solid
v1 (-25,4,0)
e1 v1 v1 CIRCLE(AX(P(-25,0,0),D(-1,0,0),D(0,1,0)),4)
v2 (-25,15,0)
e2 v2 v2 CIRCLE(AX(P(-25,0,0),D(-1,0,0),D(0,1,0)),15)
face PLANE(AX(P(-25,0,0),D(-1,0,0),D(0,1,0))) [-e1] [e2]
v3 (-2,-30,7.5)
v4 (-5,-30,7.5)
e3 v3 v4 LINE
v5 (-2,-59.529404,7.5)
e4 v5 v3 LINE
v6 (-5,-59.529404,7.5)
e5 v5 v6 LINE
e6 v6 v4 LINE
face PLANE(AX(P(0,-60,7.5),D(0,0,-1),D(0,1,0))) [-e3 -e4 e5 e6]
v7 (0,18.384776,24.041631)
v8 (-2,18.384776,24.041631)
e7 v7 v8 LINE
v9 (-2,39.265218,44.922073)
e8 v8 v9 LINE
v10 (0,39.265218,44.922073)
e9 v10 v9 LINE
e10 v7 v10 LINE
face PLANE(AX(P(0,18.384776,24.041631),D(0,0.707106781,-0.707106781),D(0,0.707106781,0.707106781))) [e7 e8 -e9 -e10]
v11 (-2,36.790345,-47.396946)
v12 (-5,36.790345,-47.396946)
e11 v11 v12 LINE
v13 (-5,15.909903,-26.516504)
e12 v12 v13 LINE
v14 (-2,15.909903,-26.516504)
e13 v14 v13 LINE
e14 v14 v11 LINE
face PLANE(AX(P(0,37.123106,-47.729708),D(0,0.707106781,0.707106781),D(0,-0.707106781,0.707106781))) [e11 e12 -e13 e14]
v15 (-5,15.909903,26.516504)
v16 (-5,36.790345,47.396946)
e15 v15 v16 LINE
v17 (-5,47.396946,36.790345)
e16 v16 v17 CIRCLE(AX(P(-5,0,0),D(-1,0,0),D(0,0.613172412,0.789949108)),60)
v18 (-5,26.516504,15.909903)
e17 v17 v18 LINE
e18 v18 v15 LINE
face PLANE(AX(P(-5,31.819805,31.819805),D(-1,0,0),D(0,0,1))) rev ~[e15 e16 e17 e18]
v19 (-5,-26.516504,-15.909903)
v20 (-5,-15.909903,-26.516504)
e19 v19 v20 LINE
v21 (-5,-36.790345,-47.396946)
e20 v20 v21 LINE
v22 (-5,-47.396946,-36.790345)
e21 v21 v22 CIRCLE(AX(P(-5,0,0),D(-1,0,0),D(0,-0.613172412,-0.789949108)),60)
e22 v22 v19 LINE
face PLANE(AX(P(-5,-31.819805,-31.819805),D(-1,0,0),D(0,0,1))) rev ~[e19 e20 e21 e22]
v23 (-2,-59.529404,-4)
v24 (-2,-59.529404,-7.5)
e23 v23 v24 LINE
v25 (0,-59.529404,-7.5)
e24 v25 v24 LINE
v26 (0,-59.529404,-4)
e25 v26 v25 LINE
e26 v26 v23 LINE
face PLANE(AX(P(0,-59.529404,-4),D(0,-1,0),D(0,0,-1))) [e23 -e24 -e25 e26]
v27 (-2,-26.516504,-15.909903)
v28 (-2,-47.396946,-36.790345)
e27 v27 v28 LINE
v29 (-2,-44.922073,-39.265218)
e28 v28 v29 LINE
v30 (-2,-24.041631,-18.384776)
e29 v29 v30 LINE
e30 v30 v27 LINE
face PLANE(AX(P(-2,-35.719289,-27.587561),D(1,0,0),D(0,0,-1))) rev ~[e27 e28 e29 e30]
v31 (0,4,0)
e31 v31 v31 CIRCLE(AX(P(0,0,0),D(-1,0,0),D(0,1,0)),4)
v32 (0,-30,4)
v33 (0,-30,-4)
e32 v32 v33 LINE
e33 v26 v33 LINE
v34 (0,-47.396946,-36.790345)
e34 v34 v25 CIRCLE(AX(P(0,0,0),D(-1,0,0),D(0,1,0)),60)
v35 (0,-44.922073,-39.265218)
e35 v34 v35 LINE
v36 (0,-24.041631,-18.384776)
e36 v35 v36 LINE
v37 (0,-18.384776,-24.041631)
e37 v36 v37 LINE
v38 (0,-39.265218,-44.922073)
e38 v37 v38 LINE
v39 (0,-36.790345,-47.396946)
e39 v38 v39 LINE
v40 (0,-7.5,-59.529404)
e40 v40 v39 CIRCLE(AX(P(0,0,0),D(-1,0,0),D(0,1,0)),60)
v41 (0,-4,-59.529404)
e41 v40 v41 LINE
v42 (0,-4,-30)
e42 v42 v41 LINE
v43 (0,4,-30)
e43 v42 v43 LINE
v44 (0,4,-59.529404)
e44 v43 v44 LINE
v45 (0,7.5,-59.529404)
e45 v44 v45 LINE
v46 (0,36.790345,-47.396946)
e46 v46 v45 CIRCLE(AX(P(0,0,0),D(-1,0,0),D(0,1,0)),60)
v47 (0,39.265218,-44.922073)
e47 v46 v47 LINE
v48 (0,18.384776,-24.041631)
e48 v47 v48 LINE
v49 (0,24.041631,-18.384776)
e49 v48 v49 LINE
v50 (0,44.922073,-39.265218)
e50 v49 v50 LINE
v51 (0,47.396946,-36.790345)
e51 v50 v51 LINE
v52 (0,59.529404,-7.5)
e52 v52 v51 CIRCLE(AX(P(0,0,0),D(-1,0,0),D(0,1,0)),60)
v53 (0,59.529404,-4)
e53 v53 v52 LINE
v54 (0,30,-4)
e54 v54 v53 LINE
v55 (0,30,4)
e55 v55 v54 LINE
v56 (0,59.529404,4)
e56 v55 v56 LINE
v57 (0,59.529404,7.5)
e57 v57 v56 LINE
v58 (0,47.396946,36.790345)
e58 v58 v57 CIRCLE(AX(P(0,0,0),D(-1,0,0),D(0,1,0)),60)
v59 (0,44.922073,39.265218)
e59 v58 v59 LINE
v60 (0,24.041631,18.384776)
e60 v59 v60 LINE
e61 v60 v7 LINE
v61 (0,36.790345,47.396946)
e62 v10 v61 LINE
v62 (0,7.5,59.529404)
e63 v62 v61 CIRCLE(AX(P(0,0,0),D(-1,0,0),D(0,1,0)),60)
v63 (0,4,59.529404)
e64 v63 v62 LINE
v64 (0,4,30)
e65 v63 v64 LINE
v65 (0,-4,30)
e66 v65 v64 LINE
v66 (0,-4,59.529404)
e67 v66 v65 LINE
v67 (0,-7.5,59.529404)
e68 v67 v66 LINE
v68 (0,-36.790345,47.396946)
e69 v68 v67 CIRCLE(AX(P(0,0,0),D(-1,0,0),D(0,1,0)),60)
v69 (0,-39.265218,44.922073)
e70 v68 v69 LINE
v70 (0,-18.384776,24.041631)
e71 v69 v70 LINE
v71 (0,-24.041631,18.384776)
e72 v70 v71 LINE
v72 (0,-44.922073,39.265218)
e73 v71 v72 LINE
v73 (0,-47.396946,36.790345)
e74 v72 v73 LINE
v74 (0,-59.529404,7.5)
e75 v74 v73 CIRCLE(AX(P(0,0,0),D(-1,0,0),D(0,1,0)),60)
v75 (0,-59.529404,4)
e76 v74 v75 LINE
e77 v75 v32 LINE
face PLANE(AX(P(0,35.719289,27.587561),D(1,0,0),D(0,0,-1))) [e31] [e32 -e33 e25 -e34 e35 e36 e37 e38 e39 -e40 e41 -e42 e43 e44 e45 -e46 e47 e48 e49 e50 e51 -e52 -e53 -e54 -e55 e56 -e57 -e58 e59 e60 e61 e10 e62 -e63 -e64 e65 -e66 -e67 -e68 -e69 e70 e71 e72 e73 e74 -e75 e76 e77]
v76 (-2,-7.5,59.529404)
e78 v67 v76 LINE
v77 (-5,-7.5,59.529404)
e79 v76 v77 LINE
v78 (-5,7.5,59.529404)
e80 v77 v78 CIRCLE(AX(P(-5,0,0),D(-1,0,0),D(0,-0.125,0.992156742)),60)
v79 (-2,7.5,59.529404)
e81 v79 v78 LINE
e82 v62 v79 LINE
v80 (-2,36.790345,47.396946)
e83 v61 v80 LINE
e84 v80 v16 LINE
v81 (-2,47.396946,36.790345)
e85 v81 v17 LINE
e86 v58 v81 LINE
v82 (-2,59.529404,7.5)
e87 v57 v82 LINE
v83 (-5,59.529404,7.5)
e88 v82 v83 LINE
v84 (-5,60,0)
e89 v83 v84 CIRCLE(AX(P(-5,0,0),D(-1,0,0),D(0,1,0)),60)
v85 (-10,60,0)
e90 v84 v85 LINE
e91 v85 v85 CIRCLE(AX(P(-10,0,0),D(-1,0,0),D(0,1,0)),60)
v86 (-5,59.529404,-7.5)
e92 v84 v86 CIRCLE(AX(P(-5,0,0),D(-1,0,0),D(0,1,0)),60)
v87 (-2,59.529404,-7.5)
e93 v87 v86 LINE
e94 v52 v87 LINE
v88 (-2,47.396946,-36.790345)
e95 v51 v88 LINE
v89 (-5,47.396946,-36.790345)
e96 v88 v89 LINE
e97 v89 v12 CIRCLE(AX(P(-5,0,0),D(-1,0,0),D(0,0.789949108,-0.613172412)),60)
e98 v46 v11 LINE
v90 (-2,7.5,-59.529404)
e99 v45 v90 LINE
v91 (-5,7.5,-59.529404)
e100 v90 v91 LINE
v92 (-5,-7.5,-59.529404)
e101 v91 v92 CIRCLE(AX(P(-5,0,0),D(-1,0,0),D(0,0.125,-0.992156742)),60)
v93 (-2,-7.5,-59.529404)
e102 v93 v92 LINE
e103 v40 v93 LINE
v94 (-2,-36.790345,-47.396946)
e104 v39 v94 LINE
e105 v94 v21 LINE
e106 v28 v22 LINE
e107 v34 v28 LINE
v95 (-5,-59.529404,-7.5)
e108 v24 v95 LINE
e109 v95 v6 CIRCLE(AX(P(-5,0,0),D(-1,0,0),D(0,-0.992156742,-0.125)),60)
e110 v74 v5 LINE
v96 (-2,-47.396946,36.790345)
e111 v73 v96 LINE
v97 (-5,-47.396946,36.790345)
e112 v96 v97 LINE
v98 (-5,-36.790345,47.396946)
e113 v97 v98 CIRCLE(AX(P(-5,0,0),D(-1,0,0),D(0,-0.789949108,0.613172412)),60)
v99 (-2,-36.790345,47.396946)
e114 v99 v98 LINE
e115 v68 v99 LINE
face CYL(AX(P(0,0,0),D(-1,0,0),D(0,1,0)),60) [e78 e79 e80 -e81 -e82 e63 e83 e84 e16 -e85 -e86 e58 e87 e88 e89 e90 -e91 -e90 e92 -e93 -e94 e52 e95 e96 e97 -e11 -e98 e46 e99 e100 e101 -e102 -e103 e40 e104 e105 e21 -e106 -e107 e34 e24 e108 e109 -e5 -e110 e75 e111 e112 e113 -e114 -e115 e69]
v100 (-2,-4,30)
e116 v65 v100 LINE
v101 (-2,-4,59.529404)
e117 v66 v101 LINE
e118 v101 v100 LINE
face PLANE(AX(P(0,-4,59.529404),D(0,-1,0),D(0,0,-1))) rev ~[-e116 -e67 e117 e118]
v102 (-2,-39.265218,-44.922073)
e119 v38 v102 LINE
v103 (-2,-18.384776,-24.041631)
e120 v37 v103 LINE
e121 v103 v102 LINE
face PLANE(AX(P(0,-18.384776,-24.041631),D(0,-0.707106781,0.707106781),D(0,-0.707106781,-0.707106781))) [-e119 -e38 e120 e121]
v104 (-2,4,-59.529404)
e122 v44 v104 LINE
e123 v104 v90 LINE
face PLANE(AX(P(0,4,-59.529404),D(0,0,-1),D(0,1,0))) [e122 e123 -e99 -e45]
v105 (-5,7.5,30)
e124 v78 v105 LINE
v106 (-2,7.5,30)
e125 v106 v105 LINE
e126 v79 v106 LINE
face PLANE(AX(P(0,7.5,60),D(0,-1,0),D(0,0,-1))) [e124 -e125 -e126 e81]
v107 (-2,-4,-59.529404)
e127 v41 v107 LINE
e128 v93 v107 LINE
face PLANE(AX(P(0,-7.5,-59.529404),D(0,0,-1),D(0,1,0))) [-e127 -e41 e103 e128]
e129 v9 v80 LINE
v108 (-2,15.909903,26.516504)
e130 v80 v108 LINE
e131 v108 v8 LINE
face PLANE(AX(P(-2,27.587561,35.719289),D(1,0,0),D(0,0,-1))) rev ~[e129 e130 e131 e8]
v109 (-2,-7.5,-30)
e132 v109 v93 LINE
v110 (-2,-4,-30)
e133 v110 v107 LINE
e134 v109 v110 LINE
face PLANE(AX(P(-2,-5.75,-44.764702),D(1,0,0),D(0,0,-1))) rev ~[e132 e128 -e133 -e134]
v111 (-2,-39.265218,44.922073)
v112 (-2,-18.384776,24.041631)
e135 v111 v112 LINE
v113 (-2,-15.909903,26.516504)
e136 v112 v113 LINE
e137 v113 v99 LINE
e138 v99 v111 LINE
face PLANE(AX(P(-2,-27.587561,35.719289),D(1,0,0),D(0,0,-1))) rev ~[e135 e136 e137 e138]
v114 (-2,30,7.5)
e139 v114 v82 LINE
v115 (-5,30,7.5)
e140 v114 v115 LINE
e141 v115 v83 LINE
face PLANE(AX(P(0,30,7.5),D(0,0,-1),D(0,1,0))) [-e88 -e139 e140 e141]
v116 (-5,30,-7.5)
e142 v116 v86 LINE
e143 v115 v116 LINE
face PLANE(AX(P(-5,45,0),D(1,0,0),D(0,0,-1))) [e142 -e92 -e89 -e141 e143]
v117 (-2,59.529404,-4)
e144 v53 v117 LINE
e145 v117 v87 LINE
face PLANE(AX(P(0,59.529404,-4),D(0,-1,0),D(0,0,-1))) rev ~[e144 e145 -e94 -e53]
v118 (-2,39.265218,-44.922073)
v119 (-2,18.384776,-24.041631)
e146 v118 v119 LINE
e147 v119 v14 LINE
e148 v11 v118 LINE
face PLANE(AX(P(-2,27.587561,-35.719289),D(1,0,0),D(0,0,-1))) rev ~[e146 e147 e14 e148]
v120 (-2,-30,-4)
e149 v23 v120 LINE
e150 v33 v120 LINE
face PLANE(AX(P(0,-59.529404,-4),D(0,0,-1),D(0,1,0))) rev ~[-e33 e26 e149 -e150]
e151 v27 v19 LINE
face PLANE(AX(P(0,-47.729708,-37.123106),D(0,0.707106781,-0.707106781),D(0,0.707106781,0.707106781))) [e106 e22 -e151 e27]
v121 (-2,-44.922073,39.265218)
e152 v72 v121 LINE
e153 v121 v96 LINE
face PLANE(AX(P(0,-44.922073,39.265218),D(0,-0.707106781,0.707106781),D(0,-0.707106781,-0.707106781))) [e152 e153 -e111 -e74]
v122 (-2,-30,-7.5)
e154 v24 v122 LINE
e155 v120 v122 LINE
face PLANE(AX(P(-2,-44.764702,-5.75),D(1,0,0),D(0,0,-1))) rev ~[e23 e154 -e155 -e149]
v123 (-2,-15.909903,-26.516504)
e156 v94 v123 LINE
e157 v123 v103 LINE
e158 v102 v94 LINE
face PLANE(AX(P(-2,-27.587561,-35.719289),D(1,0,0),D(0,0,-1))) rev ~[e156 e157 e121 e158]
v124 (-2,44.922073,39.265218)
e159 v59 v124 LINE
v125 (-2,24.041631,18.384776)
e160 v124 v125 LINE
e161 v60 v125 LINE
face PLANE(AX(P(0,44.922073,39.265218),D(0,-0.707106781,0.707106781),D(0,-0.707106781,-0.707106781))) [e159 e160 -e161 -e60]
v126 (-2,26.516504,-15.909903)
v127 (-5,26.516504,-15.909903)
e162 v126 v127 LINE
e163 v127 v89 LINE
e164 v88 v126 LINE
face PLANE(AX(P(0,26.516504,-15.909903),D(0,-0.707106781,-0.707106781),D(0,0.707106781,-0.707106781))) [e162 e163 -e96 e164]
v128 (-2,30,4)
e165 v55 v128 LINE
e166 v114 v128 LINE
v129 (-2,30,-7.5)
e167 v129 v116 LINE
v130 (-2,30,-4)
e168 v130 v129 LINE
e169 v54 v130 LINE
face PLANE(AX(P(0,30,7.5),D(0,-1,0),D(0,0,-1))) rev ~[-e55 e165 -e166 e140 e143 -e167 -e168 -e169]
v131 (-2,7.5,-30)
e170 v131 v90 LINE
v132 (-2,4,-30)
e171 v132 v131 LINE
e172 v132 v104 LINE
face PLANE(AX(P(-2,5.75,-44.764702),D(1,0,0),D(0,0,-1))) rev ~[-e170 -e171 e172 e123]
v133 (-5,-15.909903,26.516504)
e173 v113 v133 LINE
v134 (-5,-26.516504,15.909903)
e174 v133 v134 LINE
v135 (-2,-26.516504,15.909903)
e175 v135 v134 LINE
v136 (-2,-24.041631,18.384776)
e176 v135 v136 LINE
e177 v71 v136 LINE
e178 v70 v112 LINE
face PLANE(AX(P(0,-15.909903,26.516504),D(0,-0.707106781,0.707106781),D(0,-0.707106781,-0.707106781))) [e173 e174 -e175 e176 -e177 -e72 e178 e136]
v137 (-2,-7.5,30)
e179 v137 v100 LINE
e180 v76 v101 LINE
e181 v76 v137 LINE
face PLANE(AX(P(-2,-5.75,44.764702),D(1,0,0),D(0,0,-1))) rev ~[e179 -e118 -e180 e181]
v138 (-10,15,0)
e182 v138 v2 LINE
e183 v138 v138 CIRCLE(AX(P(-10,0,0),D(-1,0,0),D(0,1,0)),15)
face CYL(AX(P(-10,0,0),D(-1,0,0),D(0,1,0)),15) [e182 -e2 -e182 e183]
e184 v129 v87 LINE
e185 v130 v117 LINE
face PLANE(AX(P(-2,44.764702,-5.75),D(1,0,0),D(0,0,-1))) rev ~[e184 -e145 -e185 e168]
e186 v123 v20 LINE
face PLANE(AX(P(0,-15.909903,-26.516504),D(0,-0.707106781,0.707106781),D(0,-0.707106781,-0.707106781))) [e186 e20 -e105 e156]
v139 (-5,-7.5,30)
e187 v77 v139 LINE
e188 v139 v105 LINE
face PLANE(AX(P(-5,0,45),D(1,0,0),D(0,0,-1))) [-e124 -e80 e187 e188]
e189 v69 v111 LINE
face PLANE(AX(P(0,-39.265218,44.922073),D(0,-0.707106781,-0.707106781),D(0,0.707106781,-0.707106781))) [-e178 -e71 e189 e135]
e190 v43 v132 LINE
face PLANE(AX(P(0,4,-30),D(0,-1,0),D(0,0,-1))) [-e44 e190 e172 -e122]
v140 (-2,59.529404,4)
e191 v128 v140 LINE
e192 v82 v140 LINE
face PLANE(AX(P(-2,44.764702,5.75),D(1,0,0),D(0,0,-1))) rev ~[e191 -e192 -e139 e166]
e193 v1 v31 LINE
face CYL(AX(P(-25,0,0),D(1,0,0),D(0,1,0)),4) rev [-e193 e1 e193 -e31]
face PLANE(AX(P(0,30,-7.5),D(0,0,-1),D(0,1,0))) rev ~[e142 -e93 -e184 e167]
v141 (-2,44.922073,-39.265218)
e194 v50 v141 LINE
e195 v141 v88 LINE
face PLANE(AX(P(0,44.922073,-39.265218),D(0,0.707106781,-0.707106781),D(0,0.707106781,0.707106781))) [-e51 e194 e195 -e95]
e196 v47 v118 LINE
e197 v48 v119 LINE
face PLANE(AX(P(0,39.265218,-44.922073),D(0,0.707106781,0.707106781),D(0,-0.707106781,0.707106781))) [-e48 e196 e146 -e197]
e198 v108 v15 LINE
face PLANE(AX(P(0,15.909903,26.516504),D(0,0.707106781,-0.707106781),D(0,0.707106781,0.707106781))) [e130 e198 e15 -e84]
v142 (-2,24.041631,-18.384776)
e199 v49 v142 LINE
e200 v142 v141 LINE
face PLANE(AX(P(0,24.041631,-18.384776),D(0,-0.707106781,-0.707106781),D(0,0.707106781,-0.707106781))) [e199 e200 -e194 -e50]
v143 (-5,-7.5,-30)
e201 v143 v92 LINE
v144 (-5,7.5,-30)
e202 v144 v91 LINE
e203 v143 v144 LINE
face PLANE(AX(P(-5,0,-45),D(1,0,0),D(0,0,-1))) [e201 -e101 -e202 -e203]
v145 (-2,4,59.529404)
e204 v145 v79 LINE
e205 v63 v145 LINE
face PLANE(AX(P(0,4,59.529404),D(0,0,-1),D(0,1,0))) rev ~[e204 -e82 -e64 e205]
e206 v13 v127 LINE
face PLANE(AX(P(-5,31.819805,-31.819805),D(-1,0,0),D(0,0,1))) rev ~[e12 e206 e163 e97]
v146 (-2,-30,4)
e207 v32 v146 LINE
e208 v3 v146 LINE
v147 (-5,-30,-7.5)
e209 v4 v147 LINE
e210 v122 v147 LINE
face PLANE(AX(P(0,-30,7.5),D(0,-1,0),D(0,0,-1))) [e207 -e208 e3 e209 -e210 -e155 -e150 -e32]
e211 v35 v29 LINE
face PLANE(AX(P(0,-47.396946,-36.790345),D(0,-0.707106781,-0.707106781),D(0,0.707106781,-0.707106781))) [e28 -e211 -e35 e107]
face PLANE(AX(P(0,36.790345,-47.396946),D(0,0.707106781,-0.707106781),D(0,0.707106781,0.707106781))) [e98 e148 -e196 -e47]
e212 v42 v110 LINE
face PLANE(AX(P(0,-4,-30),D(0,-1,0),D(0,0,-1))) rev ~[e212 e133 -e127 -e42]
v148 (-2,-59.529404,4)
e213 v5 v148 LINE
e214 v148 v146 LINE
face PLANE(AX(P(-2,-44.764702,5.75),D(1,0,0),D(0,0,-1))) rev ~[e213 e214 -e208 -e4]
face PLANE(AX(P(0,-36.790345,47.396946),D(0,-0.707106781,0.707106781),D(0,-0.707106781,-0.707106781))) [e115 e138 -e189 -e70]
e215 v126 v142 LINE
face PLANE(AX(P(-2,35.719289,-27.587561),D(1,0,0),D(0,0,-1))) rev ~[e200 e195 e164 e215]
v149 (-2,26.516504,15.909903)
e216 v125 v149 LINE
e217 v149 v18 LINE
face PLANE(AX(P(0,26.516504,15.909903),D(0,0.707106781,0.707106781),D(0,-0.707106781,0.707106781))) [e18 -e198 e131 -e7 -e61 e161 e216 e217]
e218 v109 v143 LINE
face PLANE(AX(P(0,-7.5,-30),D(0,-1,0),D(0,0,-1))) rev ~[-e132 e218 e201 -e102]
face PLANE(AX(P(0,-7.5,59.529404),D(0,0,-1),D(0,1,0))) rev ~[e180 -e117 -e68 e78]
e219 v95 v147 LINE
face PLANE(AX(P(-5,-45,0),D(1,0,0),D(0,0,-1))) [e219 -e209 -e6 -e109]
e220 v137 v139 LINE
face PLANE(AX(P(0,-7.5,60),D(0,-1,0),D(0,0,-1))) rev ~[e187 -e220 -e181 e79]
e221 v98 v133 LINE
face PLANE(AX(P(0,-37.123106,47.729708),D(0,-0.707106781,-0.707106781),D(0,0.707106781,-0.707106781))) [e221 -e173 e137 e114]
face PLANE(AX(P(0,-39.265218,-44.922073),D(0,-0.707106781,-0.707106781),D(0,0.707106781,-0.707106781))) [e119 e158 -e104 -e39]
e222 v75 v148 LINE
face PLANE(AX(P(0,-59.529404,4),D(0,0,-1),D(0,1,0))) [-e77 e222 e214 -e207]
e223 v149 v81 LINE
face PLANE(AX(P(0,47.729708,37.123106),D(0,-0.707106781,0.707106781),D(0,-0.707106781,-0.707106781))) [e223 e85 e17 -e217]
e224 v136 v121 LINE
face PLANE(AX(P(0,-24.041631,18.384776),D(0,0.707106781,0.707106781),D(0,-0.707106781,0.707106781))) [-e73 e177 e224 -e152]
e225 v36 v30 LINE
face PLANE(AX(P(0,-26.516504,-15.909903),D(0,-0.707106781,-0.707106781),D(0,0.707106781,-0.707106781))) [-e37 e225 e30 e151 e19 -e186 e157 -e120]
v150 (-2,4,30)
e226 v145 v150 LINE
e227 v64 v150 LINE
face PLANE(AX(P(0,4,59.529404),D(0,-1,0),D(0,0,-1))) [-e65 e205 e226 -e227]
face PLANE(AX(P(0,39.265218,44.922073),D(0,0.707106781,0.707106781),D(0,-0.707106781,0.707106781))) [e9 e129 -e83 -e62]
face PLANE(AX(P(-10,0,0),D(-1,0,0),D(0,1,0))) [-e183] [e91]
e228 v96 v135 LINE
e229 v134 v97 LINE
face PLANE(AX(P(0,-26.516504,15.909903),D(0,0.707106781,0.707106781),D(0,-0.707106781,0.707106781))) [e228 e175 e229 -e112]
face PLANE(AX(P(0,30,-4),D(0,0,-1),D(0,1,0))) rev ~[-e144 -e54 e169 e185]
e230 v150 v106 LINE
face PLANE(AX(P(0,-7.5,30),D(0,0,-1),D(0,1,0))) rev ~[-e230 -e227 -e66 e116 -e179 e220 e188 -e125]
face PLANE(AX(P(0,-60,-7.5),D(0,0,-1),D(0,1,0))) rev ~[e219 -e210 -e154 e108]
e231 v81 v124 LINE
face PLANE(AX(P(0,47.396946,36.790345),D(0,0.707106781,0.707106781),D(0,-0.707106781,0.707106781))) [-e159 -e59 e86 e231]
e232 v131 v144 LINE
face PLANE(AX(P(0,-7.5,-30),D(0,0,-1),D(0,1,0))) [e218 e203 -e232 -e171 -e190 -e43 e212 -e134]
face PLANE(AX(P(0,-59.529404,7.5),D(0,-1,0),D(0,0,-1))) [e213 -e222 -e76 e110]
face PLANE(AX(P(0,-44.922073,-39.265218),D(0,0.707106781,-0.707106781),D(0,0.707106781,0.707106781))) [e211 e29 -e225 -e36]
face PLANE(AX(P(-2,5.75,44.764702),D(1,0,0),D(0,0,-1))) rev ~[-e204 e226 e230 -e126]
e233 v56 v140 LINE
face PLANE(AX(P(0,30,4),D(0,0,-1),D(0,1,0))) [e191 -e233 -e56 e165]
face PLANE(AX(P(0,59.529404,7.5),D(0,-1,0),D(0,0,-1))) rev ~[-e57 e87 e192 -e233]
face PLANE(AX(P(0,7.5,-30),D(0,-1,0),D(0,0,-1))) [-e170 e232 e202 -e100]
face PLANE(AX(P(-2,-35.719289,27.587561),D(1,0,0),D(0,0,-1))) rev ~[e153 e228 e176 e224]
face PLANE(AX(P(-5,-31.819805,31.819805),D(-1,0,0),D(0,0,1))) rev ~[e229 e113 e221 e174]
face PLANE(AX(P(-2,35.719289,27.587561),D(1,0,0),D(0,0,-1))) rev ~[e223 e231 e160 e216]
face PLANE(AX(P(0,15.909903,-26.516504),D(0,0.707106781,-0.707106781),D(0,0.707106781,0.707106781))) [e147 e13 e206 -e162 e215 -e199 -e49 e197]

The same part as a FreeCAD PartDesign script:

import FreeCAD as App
import Part
import Sketcher
Q = App.Units.Quantity

doc = App.newDocument("Part")
body = doc.addObject("PartDesign::Body", "Body")

# Sketch on XY plane
sketch1 = doc.addObject("Sketcher::SketchObject", "Sketch")
body.addObject(sketch1)
sketch1.AttachmentSupport = (doc.XY_Plane, [""])
sketch1.MapMode = "FlatFace"
sketch1.addGeometry([
    Part.LineSegment(App.Vector(0, 4, 0), App.Vector(0, 60, 0)),  # 0
    Part.LineSegment(App.Vector(0, 60, 0), App.Vector(-10, 60, 0)),  # 1
    Part.LineSegment(App.Vector(-10, 60, 0), App.Vector(-10, 15, 0)),  # 2
    Part.LineSegment(App.Vector(-10, 15, 0), App.Vector(-25, 15, 0)),  # 3
    Part.LineSegment(App.Vector(-25, 15, 0), App.Vector(-25, 4, 0)),  # 4
    Part.LineSegment(App.Vector(-25, 4, 0), App.Vector(0, 4, 0)),  # 5
], False)
sketch1.addConstraint([
    Sketcher.Constraint("Coincident", 0, 2, 1, 1),
    Sketcher.Constraint("Coincident", 1, 2, 2, 1),
    Sketcher.Constraint("Coincident", 2, 2, 3, 1),
    Sketcher.Constraint("Coincident", 3, 2, 4, 1),
    Sketcher.Constraint("Coincident", 4, 2, 5, 1),
    Sketcher.Constraint("Coincident", 5, 2, 0, 1),
    Sketcher.Constraint("Vertical", 0),
    Sketcher.Constraint("Horizontal", 1),
    Sketcher.Constraint("Vertical", 2),
    Sketcher.Constraint("Horizontal", 3),
    Sketcher.Constraint("Vertical", 4),
    Sketcher.Constraint("Horizontal", 5),
    Sketcher.Constraint("PointOnObject", 0, 2, -2),
    Sketcher.Constraint("DistanceX", 1, 2, 1, 1, Q("10 mm")),
    Sketcher.Constraint("DistanceX", 3, 2, 3, 1, Q("15 mm")),
    Sketcher.Constraint("DistanceY", 0, 1, 0, 2, Q("56 mm")),
    Sketcher.Constraint("DistanceY", 2, 2, 2, 1, Q("45 mm")),
    Sketcher.Constraint("DistanceY", -1, 1, 0, 2, Q("60 mm")),
])
revolution = doc.addObject("PartDesign::Revolution", "Revolution")
body.addObject(revolution)
revolution.Profile = sketch1
revolution.ReferenceAxis = (sketch1, ["H_Axis"])
revolution.Angle = 360

# Sketch on YZ plane
sketch2 = doc.addObject("Sketcher::SketchObject", "Sketch001")
body.addObject(sketch2)
sketch2.AttachmentSupport = (doc.YZ_Plane, [""])
sketch2.MapMode = "FlatFace"
sketch2.addGeometry([
    Part.LineSegment(App.Vector(47.729708, -37.123106, 0), App.Vector(26.516504, -15.909903, 0)),  # 0
    Part.LineSegment(App.Vector(26.516504, -15.909903, 0), App.Vector(15.909903, -26.516504, 0)),  # 1
    Part.LineSegment(App.Vector(15.909903, -26.516504, 0), App.Vector(37.123106, -47.729708, 0)),  # 2
    Part.LineSegment(App.Vector(37.123106, -47.729708, 0), App.Vector(47.729708, -37.123106, 0)),  # 3
    Part.LineSegment(App.Vector(60, 7.5, 0), App.Vector(30, 7.5, 0)),  # 4
    Part.LineSegment(App.Vector(30, 7.5, 0), App.Vector(30, -7.5, 0)),  # 5
    Part.LineSegment(App.Vector(30, -7.5, 0), App.Vector(60, -7.5, 0)),  # 6
    Part.LineSegment(App.Vector(60, -7.5, 0), App.Vector(60, 7.5, 0)),  # 7
    Part.LineSegment(App.Vector(7.5, -30, 0), App.Vector(-7.5, -30, 0)),  # 8
    Part.LineSegment(App.Vector(-7.5, -30, 0), App.Vector(-7.5, -60, 0)),  # 9
    Part.LineSegment(App.Vector(-7.5, -60, 0), App.Vector(7.5, -60, 0)),  # 10
    Part.LineSegment(App.Vector(7.5, -60, 0), App.Vector(7.5, -30, 0)),  # 11
    Part.LineSegment(App.Vector(-37.123106, -47.729708, 0), App.Vector(-15.909903, -26.516504, 0)),  # 12
    Part.LineSegment(App.Vector(-15.909903, -26.516504, 0), App.Vector(-26.516504, -15.909903, 0)),  # 13
    Part.LineSegment(App.Vector(-26.516504, -15.909903, 0), App.Vector(-47.729708, -37.123106, 0)),  # 14
    Part.LineSegment(App.Vector(-47.729708, -37.123106, 0), App.Vector(-37.123106, -47.729708, 0)),  # 15
    Part.LineSegment(App.Vector(-30, 7.5, 0), App.Vector(-60, 7.5, 0)),  # 16
    Part.LineSegment(App.Vector(-60, 7.5, 0), App.Vector(-60, -7.5, 0)),  # 17
    Part.LineSegment(App.Vector(-60, -7.5, 0), App.Vector(-30, -7.5, 0)),  # 18
    Part.LineSegment(App.Vector(-30, -7.5, 0), App.Vector(-30, 7.5, 0)),  # 19
    Part.LineSegment(App.Vector(-47.729708, 37.123106, 0), App.Vector(-26.516504, 15.909903, 0)),  # 20
    Part.LineSegment(App.Vector(-26.516504, 15.909903, 0), App.Vector(-15.909903, 26.516504, 0)),  # 21
    Part.LineSegment(App.Vector(-15.909903, 26.516504, 0), App.Vector(-37.123106, 47.729708, 0)),  # 22
    Part.LineSegment(App.Vector(-37.123106, 47.729708, 0), App.Vector(-47.729708, 37.123106, 0)),  # 23
    Part.LineSegment(App.Vector(7.5, 60, 0), App.Vector(-7.5, 60, 0)),  # 24
    Part.LineSegment(App.Vector(-7.5, 60, 0), App.Vector(-7.5, 30, 0)),  # 25
    Part.LineSegment(App.Vector(-7.5, 30, 0), App.Vector(7.5, 30, 0)),  # 26
    Part.LineSegment(App.Vector(7.5, 30, 0), App.Vector(7.5, 60, 0)),  # 27
    Part.LineSegment(App.Vector(37.123106, 47.729708, 0), App.Vector(15.909903, 26.516504, 0)),  # 28
    Part.LineSegment(App.Vector(15.909903, 26.516504, 0), App.Vector(26.516504, 15.909903, 0)),  # 29
    Part.LineSegment(App.Vector(26.516504, 15.909903, 0), App.Vector(47.729708, 37.123106, 0)),  # 30
    Part.LineSegment(App.Vector(47.729708, 37.123106, 0), App.Vector(37.123106, 47.729708, 0)),  # 31
], False)
sketch2.addConstraint([
    Sketcher.Constraint("Coincident", 0, 2, 1, 1),
    Sketcher.Constraint("Coincident", 1, 2, 2, 1),
    Sketcher.Constraint("Coincident", 2, 2, 3, 1),
    Sketcher.Constraint("Coincident", 3, 2, 0, 1),
    Sketcher.Constraint("Coincident", 4, 2, 5, 1),
    Sketcher.Constraint("Coincident", 5, 2, 6, 1),
    Sketcher.Constraint("Coincident", 6, 2, 7, 1),
    Sketcher.Constraint("Coincident", 7, 2, 4, 1),
    Sketcher.Constraint("Coincident", 8, 2, 9, 1),
    Sketcher.Constraint("Coincident", 9, 2, 10, 1),
    Sketcher.Constraint("Coincident", 10, 2, 11, 1),
    Sketcher.Constraint("Coincident", 11, 2, 8, 1),
    Sketcher.Constraint("Coincident", 12, 2, 13, 1),
    Sketcher.Constraint("Coincident", 13, 2, 14, 1),
    Sketcher.Constraint("Coincident", 14, 2, 15, 1),
    Sketcher.Constraint("Coincident", 15, 2, 12, 1),
    Sketcher.Constraint("Coincident", 16, 2, 17, 1),
    Sketcher.Constraint("Coincident", 17, 2, 18, 1),
    Sketcher.Constraint("Coincident", 18, 2, 19, 1),
    Sketcher.Constraint("Coincident", 19, 2, 16, 1),
    Sketcher.Constraint("Coincident", 20, 2, 21, 1),
    Sketcher.Constraint("Coincident", 21, 2, 22, 1),
    Sketcher.Constraint("Coincident", 22, 2, 23, 1),
    Sketcher.Constraint("Coincident", 23, 2, 20, 1),
    Sketcher.Constraint("Coincident", 24, 2, 25, 1),
    Sketcher.Constraint("Coincident", 25, 2, 26, 1),
    Sketcher.Constraint("Coincident", 26, 2, 27, 1),
    Sketcher.Constraint("Coincident", 27, 2, 24, 1),
    Sketcher.Constraint("Coincident", 28, 2, 29, 1),
    Sketcher.Constraint("Coincident", 29, 2, 30, 1),
    Sketcher.Constraint("Coincident", 30, 2, 31, 1),
    Sketcher.Constraint("Coincident", 31, 2, 28, 1),
    Sketcher.Constraint("Horizontal", 4),
    Sketcher.Constraint("Vertical", 5),
    Sketcher.Constraint("Horizontal", 6),
    Sketcher.Constraint("Vertical", 7),
    Sketcher.Constraint("Horizontal", 8),
    Sketcher.Constraint("Vertical", 9),
    Sketcher.Constraint("Horizontal", 10),
    Sketcher.Constraint("Vertical", 11),
    Sketcher.Constraint("Horizontal", 16),
    Sketcher.Constraint("Vertical", 17),
    Sketcher.Constraint("Horizontal", 18),
    Sketcher.Constraint("Vertical", 19),
    Sketcher.Constraint("Horizontal", 24),
    Sketcher.Constraint("Vertical", 25),
    Sketcher.Constraint("Horizontal", 26),
    Sketcher.Constraint("Vertical", 27),
    Sketcher.Constraint("Symmetric", 6, 2, 16, 2, -1, 1),
    Sketcher.Constraint("Symmetric", 4, 2, 18, 2, -1, 1),
    Sketcher.Constraint("Symmetric", 0, 2, 20, 2, -1, 1),
    Sketcher.Constraint("Symmetric", 1, 2, 21, 2, -1, 1),
    Sketcher.Constraint("Symmetric", 2, 2, 22, 2, -1, 1),
    Sketcher.Constraint("Symmetric", 3, 2, 23, 2, -1, 1),
    Sketcher.Constraint("Symmetric", 10, 2, 24, 2, -1, 1),
    Sketcher.Constraint("Symmetric", 8, 2, 26, 2, -1, 1),
    Sketcher.Constraint("Symmetric", 12, 2, 28, 2, -1, 1),
    Sketcher.Constraint("Symmetric", 13, 2, 29, 2, -1, 1),
    Sketcher.Constraint("Symmetric", 14, 2, 30, 2, -1, 1),
    Sketcher.Constraint("Symmetric", 15, 2, 31, 2, -1, 1),
    Sketcher.Constraint("Symmetric", 1, 2, 12, 2, -2),
    Sketcher.Constraint("Symmetric", 0, 2, 13, 2, -2),
    Sketcher.Constraint("Symmetric", 3, 2, 14, 2, -2),
    Sketcher.Constraint("Symmetric", 2, 2, 15, 2, -2),
    Sketcher.Constraint("Perpendicular", 0, 1),
    Sketcher.Constraint("Perpendicular", 1, 2),
    Sketcher.Constraint("Perpendicular", 2, 3),
    Sketcher.Constraint("Parallel", 3, 12),
    Sketcher.Constraint("Horizontal", 7, 2, 16, 2),
    Sketcher.Constraint("Vertical", 9, 2, 24, 2),
    Sketcher.Constraint("Equal", 26, 5),
    Sketcher.Constraint("Equal", 18, 9),
    Sketcher.Constraint("DistanceX", 4, 2, 4, 1, Q("30 mm")),
    Sketcher.Constraint("DistanceX", 8, 2, 8, 1, Q("15 mm")),
    Sketcher.Constraint("Distance", 0, Q("30 mm")),
    Sketcher.Constraint("Distance", 1, Q("15 mm")),
    Sketcher.Constraint("DistanceX", -1, 1, 4, 2, Q("30 mm")),
    Sketcher.Constraint("DistanceY", 8, 2, -1, 1, Q("30 mm")),
    Sketcher.Constraint("DistanceX", -1, 1, 0, 2, Q("26.516504 mm")),
    Sketcher.Constraint("DistanceY", 0, 2, -1, 1, Q("15.909903 mm")),
])
pocket1 = doc.addObject("PartDesign::Pocket", "Pocket")
body.addObject(pocket1)
pocket1.Profile = sketch2
pocket1.Length = 5

# Sketch on YZ plane
sketch3 = doc.addObject("Sketcher::SketchObject", "Sketch002")
body.addObject(sketch3)
sketch3.AttachmentSupport = (doc.YZ_Plane, [""])
sketch3.MapMode = "FlatFace"
sketch3.addGeometry([
    Part.LineSegment(App.Vector(26.516504, 15.909903, 0), App.Vector(47.396946, 36.790345, 0)),  # 0
    Part.LineSegment(App.Vector(47.396946, 36.790345, 0), App.Vector(44.922073, 39.265218, 0)),  # 1
    Part.LineSegment(App.Vector(44.922073, 39.265218, 0), App.Vector(24.041631, 18.384776, 0)),  # 2
    Part.LineSegment(App.Vector(24.041631, 18.384776, 0), App.Vector(26.516504, 15.909903, 0)),  # 3
    Part.LineSegment(App.Vector(18.384776, 24.041631, 0), App.Vector(39.265218, 44.922073, 0)),  # 4
    Part.LineSegment(App.Vector(39.265218, 44.922073, 0), App.Vector(36.790345, 47.396946, 0)),  # 5
    Part.LineSegment(App.Vector(36.790345, 47.396946, 0), App.Vector(15.909903, 26.516504, 0)),  # 6
    Part.LineSegment(App.Vector(15.909903, 26.516504, 0), App.Vector(18.384776, 24.041631, 0)),  # 7
    Part.LineSegment(App.Vector(7.5, 59.529404, 0), App.Vector(4, 59.529404, 0)),  # 8
    Part.LineSegment(App.Vector(4, 59.529404, 0), App.Vector(4, 30, 0)),  # 9
    Part.LineSegment(App.Vector(4, 30, 0), App.Vector(7.5, 30, 0)),  # 10
    Part.LineSegment(App.Vector(7.5, 30, 0), App.Vector(7.5, 59.529404, 0)),  # 11
    Part.LineSegment(App.Vector(-4, 59.529404, 0), App.Vector(-7.5, 59.529404, 0)),  # 12
    Part.LineSegment(App.Vector(-7.5, 59.529404, 0), App.Vector(-7.5, 30, 0)),  # 13
    Part.LineSegment(App.Vector(-7.5, 30, 0), App.Vector(-4, 30, 0)),  # 14
    Part.LineSegment(App.Vector(-4, 30, 0), App.Vector(-4, 59.529404, 0)),  # 15
    Part.LineSegment(App.Vector(-15.909903, 26.516504, 0), App.Vector(-36.790345, 47.396946, 0)),  # 16
    Part.LineSegment(App.Vector(-36.790345, 47.396946, 0), App.Vector(-39.265218, 44.922073, 0)),  # 17
    Part.LineSegment(App.Vector(-39.265218, 44.922073, 0), App.Vector(-18.384776, 24.041631, 0)),  # 18
    Part.LineSegment(App.Vector(-18.384776, 24.041631, 0), App.Vector(-15.909903, 26.516504, 0)),  # 19
    Part.LineSegment(App.Vector(-24.041631, 18.384776, 0), App.Vector(-44.922073, 39.265218, 0)),  # 20
    Part.LineSegment(App.Vector(-44.922073, 39.265218, 0), App.Vector(-47.396946, 36.790345, 0)),  # 21
    Part.LineSegment(App.Vector(-47.396946, 36.790345, 0), App.Vector(-26.516504, 15.909903, 0)),  # 22
    Part.LineSegment(App.Vector(-26.516504, 15.909903, 0), App.Vector(-24.041631, 18.384776, 0)),  # 23
    Part.LineSegment(App.Vector(-30, 7.5, 0), App.Vector(-59.529404, 7.5, 0)),  # 24
    Part.LineSegment(App.Vector(-59.529404, 7.5, 0), App.Vector(-59.529404, 4, 0)),  # 25
    Part.LineSegment(App.Vector(-59.529404, 4, 0), App.Vector(-30, 4, 0)),  # 26
    Part.LineSegment(App.Vector(-30, 4, 0), App.Vector(-30, 7.5, 0)),  # 27
    Part.LineSegment(App.Vector(-30, -4, 0), App.Vector(-59.529404, -4, 0)),  # 28
    Part.LineSegment(App.Vector(-59.529404, -4, 0), App.Vector(-59.529404, -7.5, 0)),  # 29
    Part.LineSegment(App.Vector(-59.529404, -7.5, 0), App.Vector(-30, -7.5, 0)),  # 30
    Part.LineSegment(App.Vector(-30, -7.5, 0), App.Vector(-30, -4, 0)),  # 31
    Part.LineSegment(App.Vector(-47.396946, -36.790345, 0), App.Vector(-44.922073, -39.265218, 0)),  # 32
    Part.LineSegment(App.Vector(-44.922073, -39.265218, 0), App.Vector(-24.041631, -18.384776, 0)),  # 33
    Part.LineSegment(App.Vector(-24.041631, -18.384776, 0), App.Vector(-26.516504, -15.909903, 0)),  # 34
    Part.LineSegment(App.Vector(-26.516504, -15.909903, 0), App.Vector(-47.396946, -36.790345, 0)),  # 35
    Part.LineSegment(App.Vector(-39.265218, -44.922073, 0), App.Vector(-36.790345, -47.396946, 0)),  # 36
    Part.LineSegment(App.Vector(-36.790345, -47.396946, 0), App.Vector(-15.909903, -26.516504, 0)),  # 37
    Part.LineSegment(App.Vector(-15.909903, -26.516504, 0), App.Vector(-18.384776, -24.041631, 0)),  # 38
    Part.LineSegment(App.Vector(-18.384776, -24.041631, 0), App.Vector(-39.265218, -44.922073, 0)),  # 39
    Part.LineSegment(App.Vector(-4, -30, 0), App.Vector(-7.5, -30, 0)),  # 40
    Part.LineSegment(App.Vector(-7.5, -30, 0), App.Vector(-7.5, -59.529404, 0)),  # 41
    Part.LineSegment(App.Vector(-7.5, -59.529404, 0), App.Vector(-4, -59.529404, 0)),  # 42
    Part.LineSegment(App.Vector(-4, -59.529404, 0), App.Vector(-4, -30, 0)),  # 43
    Part.LineSegment(App.Vector(7.5, -30, 0), App.Vector(4, -30, 0)),  # 44
    Part.LineSegment(App.Vector(4, -30, 0), App.Vector(4, -59.529404, 0)),  # 45
    Part.LineSegment(App.Vector(4, -59.529404, 0), App.Vector(7.5, -59.529404, 0)),  # 46
    Part.LineSegment(App.Vector(7.5, -59.529404, 0), App.Vector(7.5, -30, 0)),  # 47
    Part.LineSegment(App.Vector(36.790345, -47.396946, 0), App.Vector(39.265218, -44.922073, 0)),  # 48
    Part.LineSegment(App.Vector(39.265218, -44.922073, 0), App.Vector(18.384776, -24.041631, 0)),  # 49
    Part.LineSegment(App.Vector(18.384776, -24.041631, 0), App.Vector(15.909903, -26.516504, 0)),  # 50
    Part.LineSegment(App.Vector(15.909903, -26.516504, 0), App.Vector(36.790345, -47.396946, 0)),  # 51
    Part.LineSegment(App.Vector(44.922073, -39.265218, 0), App.Vector(47.396946, -36.790345, 0)),  # 52
    Part.LineSegment(App.Vector(47.396946, -36.790345, 0), App.Vector(26.516504, -15.909903, 0)),  # 53
    Part.LineSegment(App.Vector(26.516504, -15.909903, 0), App.Vector(24.041631, -18.384776, 0)),  # 54
    Part.LineSegment(App.Vector(24.041631, -18.384776, 0), App.Vector(44.922073, -39.265218, 0)),  # 55
    Part.LineSegment(App.Vector(59.529404, -4, 0), App.Vector(30, -4, 0)),  # 56
    Part.LineSegment(App.Vector(30, -4, 0), App.Vector(30, -7.5, 0)),  # 57
    Part.LineSegment(App.Vector(30, -7.5, 0), App.Vector(59.529404, -7.5, 0)),  # 58
    Part.LineSegment(App.Vector(59.529404, -7.5, 0), App.Vector(59.529404, -4, 0)),  # 59
    Part.LineSegment(App.Vector(59.529404, 7.5, 0), App.Vector(30, 7.5, 0)),  # 60
    Part.LineSegment(App.Vector(30, 7.5, 0), App.Vector(30, 4, 0)),  # 61
    Part.LineSegment(App.Vector(30, 4, 0), App.Vector(59.529404, 4, 0)),  # 62
    Part.LineSegment(App.Vector(59.529404, 4, 0), App.Vector(59.529404, 7.5, 0)),  # 63
], False)
sketch3.addConstraint([
    Sketcher.Constraint("Coincident", 0, 2, 1, 1),
    Sketcher.Constraint("Coincident", 1, 2, 2, 1),
    Sketcher.Constraint("Coincident", 2, 2, 3, 1),
    Sketcher.Constraint("Coincident", 3, 2, 0, 1),
    Sketcher.Constraint("Coincident", 4, 2, 5, 1),
    Sketcher.Constraint("Coincident", 5, 2, 6, 1),
    Sketcher.Constraint("Coincident", 6, 2, 7, 1),
    Sketcher.Constraint("Coincident", 7, 2, 4, 1),
    Sketcher.Constraint("Coincident", 8, 2, 9, 1),
    Sketcher.Constraint("Coincident", 9, 2, 10, 1),
    Sketcher.Constraint("Coincident", 10, 2, 11, 1),
    Sketcher.Constraint("Coincident", 11, 2, 8, 1),
    Sketcher.Constraint("Coincident", 12, 2, 13, 1),
    Sketcher.Constraint("Coincident", 13, 2, 14, 1),
    Sketcher.Constraint("Coincident", 14, 2, 15, 1),
    Sketcher.Constraint("Coincident", 15, 2, 12, 1),
    Sketcher.Constraint("Coincident", 16, 2, 17, 1),
    Sketcher.Constraint("Coincident", 17, 2, 18, 1),
    Sketcher.Constraint("Coincident", 18, 2, 19, 1),
    Sketcher.Constraint("Coincident", 19, 2, 16, 1),
    Sketcher.Constraint("Coincident", 20, 2, 21, 1),
    Sketcher.Constraint("Coincident", 21, 2, 22, 1),
    Sketcher.Constraint("Coincident", 22, 2, 23, 1),
    Sketcher.Constraint("Coincident", 23, 2, 20, 1),
    Sketcher.Constraint("Coincident", 24, 2, 25, 1),
    Sketcher.Constraint("Coincident", 25, 2, 26, 1),
    Sketcher.Constraint("Coincident", 26, 2, 27, 1),
    Sketcher.Constraint("Coincident", 27, 2, 24, 1),
    Sketcher.Constraint("Coincident", 28, 2, 29, 1),
    Sketcher.Constraint("Coincident", 29, 2, 30, 1),
    Sketcher.Constraint("Coincident", 30, 2, 31, 1),
    Sketcher.Constraint("Coincident", 31, 2, 28, 1),
    Sketcher.Constraint("Coincident", 32, 2, 33, 1),
    Sketcher.Constraint("Coincident", 33, 2, 34, 1),
    Sketcher.Constraint("Coincident", 34, 2, 35, 1),
    Sketcher.Constraint("Coincident", 35, 2, 32, 1),
    Sketcher.Constraint("Coincident", 36, 2, 37, 1),
    Sketcher.Constraint("Coincident", 37, 2, 38, 1),
    Sketcher.Constraint("Coincident", 38, 2, 39, 1),
    Sketcher.Constraint("Coincident", 39, 2, 36, 1),
    Sketcher.Constraint("Coincident", 40, 2, 41, 1),
    Sketcher.Constraint("Coincident", 41, 2, 42, 1),
    Sketcher.Constraint("Coincident", 42, 2, 43, 1),
    Sketcher.Constraint("Coincident", 43, 2, 40, 1),
    Sketcher.Constraint("Coincident", 44, 2, 45, 1),
    Sketcher.Constraint("Coincident", 45, 2, 46, 1),
    Sketcher.Constraint("Coincident", 46, 2, 47, 1),
    Sketcher.Constraint("Coincident", 47, 2, 44, 1),
    Sketcher.Constraint("Coincident", 48, 2, 49, 1),
    Sketcher.Constraint("Coincident", 49, 2, 50, 1),
    Sketcher.Constraint("Coincident", 50, 2, 51, 1),
    Sketcher.Constraint("Coincident", 51, 2, 48, 1),
    Sketcher.Constraint("Coincident", 52, 2, 53, 1),
    Sketcher.Constraint("Coincident", 53, 2, 54, 1),
    Sketcher.Constraint("Coincident", 54, 2, 55, 1),
    Sketcher.Constraint("Coincident", 55, 2, 52, 1),
    Sketcher.Constraint("Coincident", 56, 2, 57, 1),
    Sketcher.Constraint("Coincident", 57, 2, 58, 1),
    Sketcher.Constraint("Coincident", 58, 2, 59, 1),
    Sketcher.Constraint("Coincident", 59, 2, 56, 1),
    Sketcher.Constraint("Coincident", 60, 2, 61, 1),
    Sketcher.Constraint("Coincident", 61, 2, 62, 1),
    Sketcher.Constraint("Coincident", 62, 2, 63, 1),
    Sketcher.Constraint("Coincident", 63, 2, 60, 1),
    Sketcher.Constraint("Horizontal", 8),
    Sketcher.Constraint("Vertical", 9),
    Sketcher.Constraint("Horizontal", 10),
    Sketcher.Constraint("Vertical", 11),
    Sketcher.Constraint("Horizontal", 12),
    Sketcher.Constraint("Vertical", 13),
    Sketcher.Constraint("Horizontal", 14),
    Sketcher.Constraint("Vertical", 15),
    Sketcher.Constraint("Horizontal", 24),
    Sketcher.Constraint("Vertical", 25),
    Sketcher.Constraint("Horizontal", 26),
    Sketcher.Constraint("Vertical", 27),
    Sketcher.Constraint("Horizontal", 28),
    Sketcher.Constraint("Vertical", 29),
    Sketcher.Constraint("Horizontal", 30),
    Sketcher.Constraint("Vertical", 31),
    Sketcher.Constraint("Horizontal", 40),
    Sketcher.Constraint("Vertical", 41),
    Sketcher.Constraint("Horizontal", 42),
    Sketcher.Constraint("Vertical", 43),
    Sketcher.Constraint("Horizontal", 44),
    Sketcher.Constraint("Vertical", 45),
    Sketcher.Constraint("Horizontal", 46),
    Sketcher.Constraint("Vertical", 47),
    Sketcher.Constraint("Horizontal", 56),
    Sketcher.Constraint("Vertical", 57),
    Sketcher.Constraint("Horizontal", 58),
    Sketcher.Constraint("Vertical", 59),
    Sketcher.Constraint("Horizontal", 60),
    Sketcher.Constraint("Vertical", 61),
    Sketcher.Constraint("Horizontal", 62),
    Sketcher.Constraint("Vertical", 63),
    Sketcher.Constraint("Symmetric", 1, 2, 32, 2, -1, 1),
    Sketcher.Constraint("Symmetric", 2, 2, 33, 2, -1, 1),
    Sketcher.Constraint("Symmetric", 3, 2, 34, 2, -1, 1),
    Sketcher.Constraint("Symmetric", 0, 2, 35, 2, -1, 1),
    Sketcher.Constraint("Symmetric", 5, 2, 36, 2, -1, 1),
    Sketcher.Constraint("Symmetric", 6, 2, 37, 2, -1, 1),
    Sketcher.Constraint("Symmetric", 7, 2, 38, 2, -1, 1),
    Sketcher.Constraint("Symmetric", 4, 2, 39, 2, -1, 1),
    Sketcher.Constraint("Symmetric", 10, 2, 40, 2, -1, 1),
    Sketcher.Constraint("Symmetric", 8, 2, 42, 2, -1, 1),
    Sketcher.Constraint("Symmetric", 14, 2, 44, 2, -1, 1),
    Sketcher.Constraint("Symmetric", 12, 2, 46, 2, -1, 1),
    Sketcher.Constraint("Symmetric", 17, 2, 48, 2, -1, 1),
    Sketcher.Constraint("Symmetric", 18, 2, 49, 2, -1, 1),
    Sketcher.Constraint("Symmetric", 19, 2, 50, 2, -1, 1),
    Sketcher.Constraint("Symmetric", 16, 2, 51, 2, -1, 1),
    Sketcher.Constraint("Symmetric", 21, 2, 52, 2, -1, 1),
    Sketcher.Constraint("Symmetric", 22, 2, 53, 2, -1, 1),
    Sketcher.Constraint("Symmetric", 23, 2, 54, 2, -1, 1),
    Sketcher.Constraint("Symmetric", 20, 2, 55, 2, -1, 1),
    Sketcher.Constraint("Symmetric", 26, 2, 56, 2, -1, 1),
    Sketcher.Constraint("Symmetric", 24, 2, 58, 2, -1, 1),
    Sketcher.Constraint("Symmetric", 30, 2, 60, 2, -1, 1),
    Sketcher.Constraint("Symmetric", 28, 2, 62, 2, -1, 1),
    Sketcher.Constraint("Symmetric", 11, 2, 12, 2, -2),
    Sketcher.Constraint("Symmetric", 9, 2, 14, 2, -2),
    Sketcher.Constraint("Symmetric", 5, 2, 16, 2, -2),
    Sketcher.Constraint("Symmetric", 4, 2, 17, 2, -2),
    Sketcher.Constraint("Symmetric", 7, 2, 18, 2, -2),
    Sketcher.Constraint("Symmetric", 6, 2, 19, 2, -2),
    Sketcher.Constraint("Symmetric", 1, 2, 20, 2, -2),
    Sketcher.Constraint("Symmetric", 0, 2, 21, 2, -2),
    Sketcher.Constraint("Symmetric", 3, 2, 22, 2, -2),
    Sketcher.Constraint("Symmetric", 2, 2, 23, 2, -2),
    Sketcher.Constraint("Symmetric", 31, 2, 56, 2, -2),
    Sketcher.Constraint("Symmetric", 29, 2, 58, 2, -2),
    Sketcher.Constraint("Perpendicular", 0, 1),
    Sketcher.Constraint("Perpendicular", 1, 2),
    Sketcher.Constraint("Perpendicular", 2, 3),
    Sketcher.Constraint("Perpendicular", 3, 4),
    Sketcher.Constraint("Perpendicular", 4, 5),
    Sketcher.Constraint("Perpendicular", 5, 6),
    Sketcher.Constraint("Perpendicular", 6, 7),
    Sketcher.Constraint("Parallel", 7, 16),
    Sketcher.Constraint("Equal", 62, 9),
    Sketcher.Constraint("Equal", 46, 25),
    Sketcher.Constraint("Equal", 2, 4),
    Sketcher.Constraint("Equal", 3, 5),
    Sketcher.Constraint("DistanceX", 8, 2, 8, 1, Q("3.5 mm")),
    Sketcher.Constraint("DistanceX", -1, 1, 8, 2, Q("4 mm")),
    Sketcher.Constraint("DistanceY", -1, 1, 9, 2, Q("30 mm")),
    Sketcher.Constraint("DistanceY", -1, 1, 25, 2, Q("4 mm")),
    Sketcher.Constraint("DistanceX", 26, 2, -1, 1, Q("30 mm")),
    Sketcher.Constraint("Distance", 1, Q("3.5 mm")),
    Sketcher.Constraint("DistanceX", 24, 2, 24, 1, Q("29.529404 mm")),
    Sketcher.Constraint("DistanceY", -1, 1, 1, 2, Q("39.265218 mm")),
    Sketcher.Constraint("DistanceX", -1, 1, 2, 2, Q("24.041631 mm")),
    Sketcher.Constraint("DistanceX", -1, 1, 4, 2, Q("39.265218 mm")),
    Sketcher.Constraint("DistanceY", -1, 1, 7, 2, Q("24.041631 mm")),
    Sketcher.Constraint("Distance", 0, Q("29.529404 mm")),
])
pad1 = doc.addObject("PartDesign::Pad", "Pad")
body.addObject(pad1)
pad1.Profile = sketch3
pad1.Length = 2
pad1.Reversed = True

doc.recompute()
